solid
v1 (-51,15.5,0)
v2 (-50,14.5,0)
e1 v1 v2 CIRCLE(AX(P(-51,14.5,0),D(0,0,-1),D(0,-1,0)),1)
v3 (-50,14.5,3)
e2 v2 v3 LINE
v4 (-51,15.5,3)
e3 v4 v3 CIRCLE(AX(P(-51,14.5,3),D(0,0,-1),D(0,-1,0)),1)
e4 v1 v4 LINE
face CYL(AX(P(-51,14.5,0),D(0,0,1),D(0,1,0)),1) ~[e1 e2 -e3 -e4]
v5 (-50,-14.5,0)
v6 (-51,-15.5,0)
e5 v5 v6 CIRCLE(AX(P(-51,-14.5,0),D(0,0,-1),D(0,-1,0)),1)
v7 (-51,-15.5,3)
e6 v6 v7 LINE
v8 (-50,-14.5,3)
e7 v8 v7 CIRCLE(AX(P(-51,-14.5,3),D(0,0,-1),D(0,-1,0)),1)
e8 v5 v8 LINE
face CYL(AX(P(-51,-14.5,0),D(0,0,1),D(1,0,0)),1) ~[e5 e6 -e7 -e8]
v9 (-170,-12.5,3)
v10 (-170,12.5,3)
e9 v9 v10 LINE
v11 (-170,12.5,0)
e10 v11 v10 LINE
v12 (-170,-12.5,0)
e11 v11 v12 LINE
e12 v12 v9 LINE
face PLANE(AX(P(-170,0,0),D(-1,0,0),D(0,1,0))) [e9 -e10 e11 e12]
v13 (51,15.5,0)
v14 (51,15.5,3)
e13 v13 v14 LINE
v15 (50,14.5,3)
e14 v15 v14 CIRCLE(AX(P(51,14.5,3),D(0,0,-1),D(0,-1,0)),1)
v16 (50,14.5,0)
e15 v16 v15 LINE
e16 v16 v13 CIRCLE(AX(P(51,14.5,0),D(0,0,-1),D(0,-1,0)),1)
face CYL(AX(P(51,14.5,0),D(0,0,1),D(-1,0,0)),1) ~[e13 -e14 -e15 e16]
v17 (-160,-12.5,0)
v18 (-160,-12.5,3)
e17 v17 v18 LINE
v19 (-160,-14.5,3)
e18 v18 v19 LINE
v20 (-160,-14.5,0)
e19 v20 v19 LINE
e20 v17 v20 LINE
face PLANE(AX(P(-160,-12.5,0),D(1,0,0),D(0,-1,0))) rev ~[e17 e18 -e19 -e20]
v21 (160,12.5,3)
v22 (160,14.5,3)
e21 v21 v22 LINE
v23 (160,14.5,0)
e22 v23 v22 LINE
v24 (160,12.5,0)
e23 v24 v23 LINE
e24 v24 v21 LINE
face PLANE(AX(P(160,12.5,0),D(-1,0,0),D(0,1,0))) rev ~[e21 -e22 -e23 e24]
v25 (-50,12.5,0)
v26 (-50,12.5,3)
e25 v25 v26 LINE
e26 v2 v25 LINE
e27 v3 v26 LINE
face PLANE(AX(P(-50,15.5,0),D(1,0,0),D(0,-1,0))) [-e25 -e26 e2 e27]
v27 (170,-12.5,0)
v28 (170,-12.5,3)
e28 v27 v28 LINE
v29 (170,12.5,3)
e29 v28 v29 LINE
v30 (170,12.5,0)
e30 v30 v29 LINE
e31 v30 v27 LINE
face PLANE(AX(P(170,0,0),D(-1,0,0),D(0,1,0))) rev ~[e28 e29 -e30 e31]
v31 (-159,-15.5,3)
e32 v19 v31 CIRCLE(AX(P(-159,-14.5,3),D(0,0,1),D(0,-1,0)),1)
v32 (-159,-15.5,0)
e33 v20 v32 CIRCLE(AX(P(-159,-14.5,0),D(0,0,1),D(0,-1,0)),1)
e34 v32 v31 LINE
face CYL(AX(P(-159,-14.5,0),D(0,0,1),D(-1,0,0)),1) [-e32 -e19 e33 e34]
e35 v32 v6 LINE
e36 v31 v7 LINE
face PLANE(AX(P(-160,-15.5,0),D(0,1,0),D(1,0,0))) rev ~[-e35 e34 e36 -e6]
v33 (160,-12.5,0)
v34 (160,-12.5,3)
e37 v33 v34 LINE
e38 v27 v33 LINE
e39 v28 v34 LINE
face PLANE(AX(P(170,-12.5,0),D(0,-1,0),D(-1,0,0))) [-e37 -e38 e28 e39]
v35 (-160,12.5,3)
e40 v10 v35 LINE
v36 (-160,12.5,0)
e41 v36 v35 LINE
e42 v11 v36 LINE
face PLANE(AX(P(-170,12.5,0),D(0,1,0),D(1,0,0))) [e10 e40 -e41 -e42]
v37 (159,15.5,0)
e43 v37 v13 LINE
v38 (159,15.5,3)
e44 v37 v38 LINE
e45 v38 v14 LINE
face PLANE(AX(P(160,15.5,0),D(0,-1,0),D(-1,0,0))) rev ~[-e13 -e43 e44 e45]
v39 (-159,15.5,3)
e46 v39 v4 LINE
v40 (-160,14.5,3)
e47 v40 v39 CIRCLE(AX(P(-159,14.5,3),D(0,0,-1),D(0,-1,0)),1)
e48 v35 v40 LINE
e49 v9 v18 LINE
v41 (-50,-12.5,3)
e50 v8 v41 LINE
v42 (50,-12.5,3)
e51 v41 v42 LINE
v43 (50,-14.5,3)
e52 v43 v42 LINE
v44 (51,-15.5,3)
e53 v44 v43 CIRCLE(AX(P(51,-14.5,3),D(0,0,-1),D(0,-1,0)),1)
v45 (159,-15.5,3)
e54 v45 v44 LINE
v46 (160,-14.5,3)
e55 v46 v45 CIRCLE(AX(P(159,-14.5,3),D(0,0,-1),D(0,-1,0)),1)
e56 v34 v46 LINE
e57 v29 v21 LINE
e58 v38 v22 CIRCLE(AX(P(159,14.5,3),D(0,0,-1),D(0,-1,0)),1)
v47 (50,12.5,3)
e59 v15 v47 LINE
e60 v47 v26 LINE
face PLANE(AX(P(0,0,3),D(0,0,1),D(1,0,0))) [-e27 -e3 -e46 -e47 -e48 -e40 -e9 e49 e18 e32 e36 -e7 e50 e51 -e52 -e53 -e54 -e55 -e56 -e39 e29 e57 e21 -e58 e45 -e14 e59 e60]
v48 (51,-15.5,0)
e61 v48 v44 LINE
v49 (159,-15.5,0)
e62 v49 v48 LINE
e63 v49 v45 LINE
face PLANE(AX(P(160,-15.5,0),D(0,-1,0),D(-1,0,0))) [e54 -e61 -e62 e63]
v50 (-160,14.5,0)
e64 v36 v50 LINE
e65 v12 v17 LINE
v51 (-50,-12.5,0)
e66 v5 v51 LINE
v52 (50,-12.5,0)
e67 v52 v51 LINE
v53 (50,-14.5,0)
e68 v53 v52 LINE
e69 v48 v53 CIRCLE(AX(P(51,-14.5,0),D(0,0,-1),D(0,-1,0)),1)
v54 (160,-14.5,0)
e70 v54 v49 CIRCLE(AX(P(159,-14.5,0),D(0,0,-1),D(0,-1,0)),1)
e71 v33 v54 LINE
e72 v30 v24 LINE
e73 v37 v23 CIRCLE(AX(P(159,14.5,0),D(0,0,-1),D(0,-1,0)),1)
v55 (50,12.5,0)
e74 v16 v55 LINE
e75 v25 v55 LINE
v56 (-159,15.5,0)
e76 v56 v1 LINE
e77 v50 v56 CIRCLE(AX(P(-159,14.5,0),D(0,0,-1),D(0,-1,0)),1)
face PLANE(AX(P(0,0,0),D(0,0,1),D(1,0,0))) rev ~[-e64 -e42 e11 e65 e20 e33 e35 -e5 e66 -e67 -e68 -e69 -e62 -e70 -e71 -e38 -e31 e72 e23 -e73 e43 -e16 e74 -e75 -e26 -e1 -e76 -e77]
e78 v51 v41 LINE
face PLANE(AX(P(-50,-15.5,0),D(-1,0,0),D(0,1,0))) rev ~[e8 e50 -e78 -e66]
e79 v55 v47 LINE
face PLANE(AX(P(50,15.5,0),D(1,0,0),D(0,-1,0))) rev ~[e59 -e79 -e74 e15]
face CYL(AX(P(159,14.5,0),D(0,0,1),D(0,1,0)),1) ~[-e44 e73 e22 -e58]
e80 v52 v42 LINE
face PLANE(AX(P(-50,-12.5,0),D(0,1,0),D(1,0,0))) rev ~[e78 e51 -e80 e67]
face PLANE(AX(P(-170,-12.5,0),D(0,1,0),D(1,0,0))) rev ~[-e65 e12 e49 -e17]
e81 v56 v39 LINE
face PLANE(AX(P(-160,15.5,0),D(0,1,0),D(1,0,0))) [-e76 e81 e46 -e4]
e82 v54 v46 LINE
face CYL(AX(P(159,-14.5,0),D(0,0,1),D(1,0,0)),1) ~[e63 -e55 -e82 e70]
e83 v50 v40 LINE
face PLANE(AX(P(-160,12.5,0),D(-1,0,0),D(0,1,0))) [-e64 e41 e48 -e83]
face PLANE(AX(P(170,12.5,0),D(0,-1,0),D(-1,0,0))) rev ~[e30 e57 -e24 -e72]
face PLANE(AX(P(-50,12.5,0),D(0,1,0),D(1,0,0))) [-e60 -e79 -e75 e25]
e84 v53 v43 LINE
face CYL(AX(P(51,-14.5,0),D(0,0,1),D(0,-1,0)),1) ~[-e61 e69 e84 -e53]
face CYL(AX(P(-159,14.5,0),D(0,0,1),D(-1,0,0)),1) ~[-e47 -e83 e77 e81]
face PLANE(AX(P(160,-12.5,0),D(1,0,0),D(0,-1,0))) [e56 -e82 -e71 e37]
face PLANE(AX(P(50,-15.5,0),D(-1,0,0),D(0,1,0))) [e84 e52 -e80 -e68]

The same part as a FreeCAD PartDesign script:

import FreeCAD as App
import Part
import Sketcher

V = App.Vector


def edges_at(feature, points):
    """Names of the edges that pass closest to the given points."""
    edges = feature.Shape.Edges
    near = lambda p: min(range(len(edges)), key=lambda i: edges[i].distToShape(Part.Vertex(*p))[0])
    return sorted({f"Edge{near(p) + 1}" for p in points})

doc = App.newDocument("Part")
body = doc.addObject("PartDesign::Body", "Body")

# Sketch on XY plane
sketch1 = doc.addObject("Sketcher::SketchObject", "Sketch")
body.addObject(sketch1)
sketch1.AttachmentSupport = (doc.XY_Plane, [""])
sketch1.MapMode = "FlatFace"
sketch1.addGeometry(Part.LineSegment(V(-170, 12.5, 0), V(-170, -12.5, 0)), False)
sketch1.addGeometry(Part.LineSegment(V(-170, -12.5, 0), V(-160, -12.5, 0)), False)
sketch1.addGeometry(Part.LineSegment(V(-160, -12.5, 0), V(-160, -15.5, 0)), False)
sketch1.addGeometry(Part.LineSegment(V(-160, -15.5, 0), V(-50, -15.5, 0)), False)
sketch1.addGeometry(Part.LineSegment(V(-50, -15.5, 0), V(-50, -12.5, 0)), False)
sketch1.addGeometry(Part.LineSegment(V(-50, -12.5, 0), V(50, -12.5, 0)), False)
sketch1.addGeometry(Part.LineSegment(V(50, -12.5, 0), V(50, -15.5, 0)), False)
sketch1.addGeometry(Part.LineSegment(V(50, -15.5, 0), V(160, -15.5, 0)), False)
sketch1.addGeometry(Part.LineSegment(V(160, -15.5, 0), V(160, -12.5, 0)), False)
sketch1.addGeometry(Part.LineSegment(V(160, -12.5, 0), V(170, -12.5, 0)), False)
sketch1.addGeometry(Part.LineSegment(V(170, -12.5, 0), V(170, 12.5, 0)), False)
sketch1.addGeometry(Part.LineSegment(V(170, 12.5, 0), V(160, 12.5, 0)), False)
sketch1.addGeometry(Part.LineSegment(V(160, 12.5, 0), V(160, 15.5, 0)), False)
sketch1.addGeometry(Part.LineSegment(V(160, 15.5, 0), V(50, 15.5, 0)), False)
sketch1.addGeometry(Part.LineSegment(V(50, 15.5, 0), V(50, 12.5, 0)), False)
sketch1.addGeometry(Part.LineSegment(V(50, 12.5, 0), V(-50, 12.5, 0)), False)
sketch1.addGeometry(Part.LineSegment(V(-50, 12.5, 0), V(-50, 15.5, 0)), False)
sketch1.addGeometry(Part.LineSegment(V(-50, 15.5, 0), V(-160, 15.5, 0)), False)
sketch1.addGeometry(Part.LineSegment(V(-160, 15.5, 0), V(-160, 12.5, 0)), False)
sketch1.addGeometry(Part.LineSegment(V(-160, 12.5, 0), V(-170, 12.5, 0)), False)
sketch1.addConstraint(Sketcher.Constraint("Coincident", 0, 2, 1, 1))
sketch1.addConstraint(Sketcher.Constraint("Coincident", 1, 2, 2, 1))
sketch1.addConstraint(Sketcher.Constraint("Coincident", 2, 2, 3, 1))
sketch1.addConstraint(Sketcher.Constraint("Coincident", 3, 2, 4, 1))
sketch1.addConstraint(Sketcher.Constraint("Coincident", 4, 2, 5, 1))
sketch1.addConstraint(Sketcher.Constraint("Coincident", 5, 2, 6, 1))
sketch1.addConstraint(Sketcher.Constraint("Coincident", 6, 2, 7, 1))
sketch1.addConstraint(Sketcher.Constraint("Coincident", 7, 2, 8, 1))
sketch1.addConstraint(Sketcher.Constraint("Coincident", 8, 2, 9, 1))
sketch1.addConstraint(Sketcher.Constraint("Coincident", 9, 2, 10, 1))
sketch1.addConstraint(Sketcher.Constraint("Coincident", 10, 2, 11, 1))
sketch1.addConstraint(Sketcher.Constraint("Coincident", 11, 2, 12, 1))
sketch1.addConstraint(Sketcher.Constraint("Coincident", 12, 2, 13, 1))
sketch1.addConstraint(Sketcher.Constraint("Coincident", 13, 2, 14, 1))
sketch1.addConstraint(Sketcher.Constraint("Coincident", 14, 2, 15, 1))
sketch1.addConstraint(Sketcher.Constraint("Coincident", 15, 2, 16, 1))
sketch1.addConstraint(Sketcher.Constraint("Coincident", 16, 2, 17, 1))
sketch1.addConstraint(Sketcher.Constraint("Coincident", 17, 2, 18, 1))
sketch1.addConstraint(Sketcher.Constraint("Coincident", 18, 2, 19, 1))
sketch1.addConstraint(Sketcher.Constraint("Coincident", 19, 2, 0, 1))
sketch1.addConstraint(Sketcher.Constraint("Vertical", 0))
sketch1.addConstraint(Sketcher.Constraint("Horizontal", 1))
sketch1.addConstraint(Sketcher.Constraint("Vertical", 2))
sketch1.addConstraint(Sketcher.Constraint("Horizontal", 3))
sketch1.addConstraint(Sketcher.Constraint("Vertical", 4))
sketch1.addConstraint(Sketcher.Constraint("Horizontal", 5))
sketch1.addConstraint(Sketcher.Constraint("Vertical", 6))
sketch1.addConstraint(Sketcher.Constraint("Horizontal", 7))
sketch1.addConstraint(Sketcher.Constraint("Vertical", 8))
sketch1.addConstraint(Sketcher.Constraint("Horizontal", 9))
sketch1.addConstraint(Sketcher.Constraint("Vertical", 10))
sketch1.addConstraint(Sketcher.Constraint("Horizontal", 11))
sketch1.addConstraint(Sketcher.Constraint("Vertical", 12))
sketch1.addConstraint(Sketcher.Constraint("Horizontal", 13))
sketch1.addConstraint(Sketcher.Constraint("Vertical", 14))
sketch1.addConstraint(Sketcher.Constraint("Horizontal", 15))
sketch1.addConstraint(Sketcher.Constraint("Vertical", 16))
sketch1.addConstraint(Sketcher.Constraint("Horizontal", 17))
sketch1.addConstraint(Sketcher.Constraint("Vertical", 18))
sketch1.addConstraint(Sketcher.Constraint("Horizontal", 19))
sketch1.addConstraint(Sketcher.Constraint("Symmetric", 0, 2, 10, 2, -1, 1))
sketch1.addConstraint(Sketcher.Constraint("Symmetric", 2, 2, 12, 2, -1, 1))
sketch1.addConstraint(Sketcher.Constraint("Symmetric", 4, 2, 14, 2, -1, 1))
sketch1.addConstraint(Sketcher.Constraint("Symmetric", 6, 2, 16, 2, -1, 1))
sketch1.addConstraint(Sketcher.Constraint("Symmetric", 8, 2, 18, 2, -1, 1))
sketch1.addConstraint(Sketcher.Constraint("Symmetric", 3, 2, 6, 2, -2))
sketch1.addConstraint(Sketcher.Constraint("Symmetric", 1, 2, 8, 2, -2))
sketch1.addConstraint(Sketcher.Constraint("Horizontal", 1, 2, 4, 2))
sketch1.addConstraint(Sketcher.Constraint("DistanceX", 1, 1, 1, 2, 10.0))
sketch1.addConstraint(Sketcher.Constraint("DistanceX", 3, 1, 3, 2, 110.0))
sketch1.addConstraint(Sketcher.Constraint("DistanceX", 5, 1, 5, 2, 100.0))
sketch1.addConstraint(Sketcher.Constraint("DistanceY", 0, 2, 0, 1, 25.0))
sketch1.addConstraint(Sketcher.Constraint("DistanceY", 2, 2, 2, 1, 3.0))
pad1 = doc.addObject("PartDesign::Pad", "Pad")
body.addObject(pad1)
pad1.Profile = sketch1
pad1.Length = 3
doc.recompute()

fillet = doc.addObject("PartDesign::Fillet", "Fillet")
body.addObject(fillet)
fillet.Base = (pad1, edges_at(pad1, [
    (-160, 15.5, 1.5),
    (-50, 15.5, 1.5),
    (50, 15.5, 1.5),
    (160, 15.5, 1.5),
    (160, -15.5, 1.5),
    (50, -15.5, 1.5),
    (-50, -15.5, 1.5),
    (-160, -15.5, 1.5),
]))
fillet.Radius = 1

doc.recompute()
